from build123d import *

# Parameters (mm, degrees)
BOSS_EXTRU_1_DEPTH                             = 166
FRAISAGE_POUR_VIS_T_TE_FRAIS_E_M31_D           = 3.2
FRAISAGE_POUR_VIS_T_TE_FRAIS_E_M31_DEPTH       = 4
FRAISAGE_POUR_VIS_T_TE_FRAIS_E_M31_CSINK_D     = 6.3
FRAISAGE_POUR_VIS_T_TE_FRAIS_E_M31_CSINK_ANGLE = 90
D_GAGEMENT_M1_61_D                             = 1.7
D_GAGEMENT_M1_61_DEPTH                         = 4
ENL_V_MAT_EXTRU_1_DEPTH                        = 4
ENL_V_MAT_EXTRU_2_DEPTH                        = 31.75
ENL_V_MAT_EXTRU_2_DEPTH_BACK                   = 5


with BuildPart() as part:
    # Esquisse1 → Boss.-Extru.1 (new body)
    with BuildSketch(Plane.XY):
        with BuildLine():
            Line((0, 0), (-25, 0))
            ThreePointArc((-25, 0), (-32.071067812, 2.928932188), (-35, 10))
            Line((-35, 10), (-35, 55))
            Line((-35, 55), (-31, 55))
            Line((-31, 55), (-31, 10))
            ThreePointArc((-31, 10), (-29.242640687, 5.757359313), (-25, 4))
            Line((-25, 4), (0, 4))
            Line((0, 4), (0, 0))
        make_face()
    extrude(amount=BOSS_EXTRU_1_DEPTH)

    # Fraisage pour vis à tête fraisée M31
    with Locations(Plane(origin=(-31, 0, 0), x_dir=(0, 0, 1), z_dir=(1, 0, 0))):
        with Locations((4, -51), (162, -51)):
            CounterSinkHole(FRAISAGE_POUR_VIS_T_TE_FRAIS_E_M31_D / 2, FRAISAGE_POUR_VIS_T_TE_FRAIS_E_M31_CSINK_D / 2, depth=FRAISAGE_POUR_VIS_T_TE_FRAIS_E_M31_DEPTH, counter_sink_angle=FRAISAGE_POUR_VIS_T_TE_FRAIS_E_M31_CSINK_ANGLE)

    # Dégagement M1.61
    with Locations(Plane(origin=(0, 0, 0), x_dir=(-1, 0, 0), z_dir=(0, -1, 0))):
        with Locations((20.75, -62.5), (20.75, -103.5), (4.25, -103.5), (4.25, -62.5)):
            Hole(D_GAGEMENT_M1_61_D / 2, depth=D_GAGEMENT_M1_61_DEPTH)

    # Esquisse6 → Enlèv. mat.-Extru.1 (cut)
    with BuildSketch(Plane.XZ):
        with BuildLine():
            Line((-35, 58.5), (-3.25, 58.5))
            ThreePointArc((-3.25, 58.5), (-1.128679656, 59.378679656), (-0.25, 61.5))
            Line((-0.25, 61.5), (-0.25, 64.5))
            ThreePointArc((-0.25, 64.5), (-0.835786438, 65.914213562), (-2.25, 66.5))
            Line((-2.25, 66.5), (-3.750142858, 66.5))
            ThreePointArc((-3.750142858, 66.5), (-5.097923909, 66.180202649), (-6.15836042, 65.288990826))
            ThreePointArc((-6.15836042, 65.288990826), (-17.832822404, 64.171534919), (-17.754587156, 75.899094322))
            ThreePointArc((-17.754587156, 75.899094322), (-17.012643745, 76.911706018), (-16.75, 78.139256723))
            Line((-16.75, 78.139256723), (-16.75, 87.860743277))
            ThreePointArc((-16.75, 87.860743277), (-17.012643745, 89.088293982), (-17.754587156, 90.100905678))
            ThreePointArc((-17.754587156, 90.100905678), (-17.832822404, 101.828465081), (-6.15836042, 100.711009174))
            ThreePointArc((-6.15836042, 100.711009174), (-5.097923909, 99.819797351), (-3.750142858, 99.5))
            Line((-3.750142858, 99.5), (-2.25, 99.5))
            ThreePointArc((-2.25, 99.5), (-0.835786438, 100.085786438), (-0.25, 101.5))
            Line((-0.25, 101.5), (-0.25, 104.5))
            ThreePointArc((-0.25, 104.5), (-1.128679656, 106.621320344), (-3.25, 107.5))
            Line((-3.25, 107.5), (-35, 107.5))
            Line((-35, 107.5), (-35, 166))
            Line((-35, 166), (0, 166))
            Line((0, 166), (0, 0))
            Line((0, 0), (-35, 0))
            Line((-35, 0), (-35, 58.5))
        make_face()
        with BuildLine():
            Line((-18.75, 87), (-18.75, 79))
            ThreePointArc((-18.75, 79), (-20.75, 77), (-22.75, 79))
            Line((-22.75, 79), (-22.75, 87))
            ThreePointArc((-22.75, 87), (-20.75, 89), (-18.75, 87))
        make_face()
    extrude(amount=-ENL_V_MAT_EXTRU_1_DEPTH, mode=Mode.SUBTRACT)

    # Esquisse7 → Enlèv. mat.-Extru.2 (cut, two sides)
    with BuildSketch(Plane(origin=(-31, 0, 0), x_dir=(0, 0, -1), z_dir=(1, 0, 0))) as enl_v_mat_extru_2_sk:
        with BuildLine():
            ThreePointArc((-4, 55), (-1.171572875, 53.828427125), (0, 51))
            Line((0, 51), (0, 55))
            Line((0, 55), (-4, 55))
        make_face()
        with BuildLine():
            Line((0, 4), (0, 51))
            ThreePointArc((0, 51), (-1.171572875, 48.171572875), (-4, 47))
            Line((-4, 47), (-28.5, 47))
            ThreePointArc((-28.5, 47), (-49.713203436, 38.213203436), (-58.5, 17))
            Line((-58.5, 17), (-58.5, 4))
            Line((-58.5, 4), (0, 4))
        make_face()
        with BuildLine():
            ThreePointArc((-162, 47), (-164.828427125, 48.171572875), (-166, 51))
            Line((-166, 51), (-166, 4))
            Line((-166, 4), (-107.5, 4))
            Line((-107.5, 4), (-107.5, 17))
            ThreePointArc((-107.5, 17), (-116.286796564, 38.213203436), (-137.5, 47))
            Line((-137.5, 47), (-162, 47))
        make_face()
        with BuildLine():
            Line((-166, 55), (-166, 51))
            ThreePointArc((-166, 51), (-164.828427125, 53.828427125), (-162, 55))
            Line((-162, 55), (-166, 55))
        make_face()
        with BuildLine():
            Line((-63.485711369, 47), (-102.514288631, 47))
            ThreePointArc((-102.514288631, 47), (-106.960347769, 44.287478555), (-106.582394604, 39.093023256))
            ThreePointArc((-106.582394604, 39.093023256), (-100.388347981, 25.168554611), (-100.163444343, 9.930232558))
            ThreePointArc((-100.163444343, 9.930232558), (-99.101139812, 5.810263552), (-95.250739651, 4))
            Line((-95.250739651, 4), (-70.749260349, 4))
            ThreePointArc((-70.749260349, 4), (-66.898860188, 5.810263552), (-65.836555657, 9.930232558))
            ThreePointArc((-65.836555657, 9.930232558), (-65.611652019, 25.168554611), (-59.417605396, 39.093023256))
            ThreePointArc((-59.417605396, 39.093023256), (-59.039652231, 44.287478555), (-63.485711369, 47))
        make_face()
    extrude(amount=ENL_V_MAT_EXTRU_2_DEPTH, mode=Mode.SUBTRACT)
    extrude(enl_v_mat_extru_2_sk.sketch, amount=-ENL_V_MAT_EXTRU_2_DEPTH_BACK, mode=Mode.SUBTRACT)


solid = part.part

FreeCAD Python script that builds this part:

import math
import FreeCAD as App
import Part
import Sketcher
from FreeCAD import Vector
Q = App.Units.Quantity

doc = App.newDocument("Part")
body = doc.addObject("PartDesign::Body", "Body")

sketch1 = body.newObject("Sketcher::SketchObject", "Sketch")
sketch1.AttachmentSupport = (doc.getObject("XY_Plane"), [""])
sketch1.MapMode = "FlatFace"
sketch1.addGeometry(Part.LineSegment(Vector(-25, 0, 0), Vector(0, 0, 0)), False)
sketch1.addGeometry(Part.LineSegment(Vector(0, 0, 0), Vector(0, 4, 0)), False)
sketch1.addGeometry(Part.LineSegment(Vector(0, 4, 0), Vector(-25, 4, 0)), False)
sketch1.addGeometry(Part.ArcOfCircle(Part.Circle(Vector(-25, 10, 0), Vector(0, 0, 1), 6), math.radians(180), math.radians(270)), False)
sketch1.addGeometry(Part.LineSegment(Vector(-31, 10, 0), Vector(-31, 55, 0)), False)
sketch1.addGeometry(Part.LineSegment(Vector(-31, 55, 0), Vector(-35, 55, 0)), False)
sketch1.addGeometry(Part.LineSegment(Vector(-35, 55, 0), Vector(-35, 10, 0)), False)
sketch1.addGeometry(Part.ArcOfCircle(Part.Circle(Vector(-25, 10, 0), Vector(0, 0, 1), 10), math.radians(180), math.radians(270)), False)
sketch1.addConstraint(Sketcher.Constraint("Coincident", 0, 2, 1, 1))
sketch1.addConstraint(Sketcher.Constraint("Coincident", 1, 2, 2, 1))
sketch1.addConstraint(Sketcher.Constraint("Tangent", 2, 2, 3, 2))
sketch1.addConstraint(Sketcher.Constraint("Tangent", 3, 1, 4, 1))
sketch1.addConstraint(Sketcher.Constraint("Coincident", 4, 2, 5, 1))
sketch1.addConstraint(Sketcher.Constraint("Coincident", 5, 2, 6, 1))
sketch1.addConstraint(Sketcher.Constraint("Tangent", 6, 2, 7, 1))
sketch1.addConstraint(Sketcher.Constraint("Tangent", 7, 2, 0, 1))
sketch1.addConstraint(Sketcher.Constraint("Horizontal", 0))
sketch1.addConstraint(Sketcher.Constraint("Vertical", 1))
sketch1.addConstraint(Sketcher.Constraint("Horizontal", 2))
sketch1.addConstraint(Sketcher.Constraint("Vertical", 4))
sketch1.addConstraint(Sketcher.Constraint("Horizontal", 5))
sketch1.addConstraint(Sketcher.Constraint("Vertical", 6))
sketch1.addConstraint(Sketcher.Constraint("Coincident", 0, 2, -1, 1))
sketch1.addConstraint(Sketcher.Constraint("Coincident", 7, 3, 3, 3))
sketch1.addConstraint(Sketcher.Constraint("Radius", 3, Q("6 mm")))
sketch1.addConstraint(Sketcher.Constraint("Radius", 7, Q("10 mm")))
sketch1.addConstraint(Sketcher.Constraint("DistanceX", 0, 1, 0, 2, Q("25 mm")))
sketch1.addConstraint(Sketcher.Constraint("DistanceY", 4, 1, 4, 2, Q("45 mm")))
pad1 = body.newObject("PartDesign::Pad", "Pad")
pad1.Profile = sketch1
pad1.Length = 166

sketch2 = body.newObject("Sketcher::SketchObject", "Sketch001")
sketch2.AttachmentSupport = (doc.getObject("YZ_Plane"), [""])
sketch2.MapMode = "FlatFace"
sketch2.AttachmentOffset = App.Placement(Vector(0, 0, -31), App.Rotation())
sketch2.addGeometry(Part.Circle(Vector(51, 4, 0), Vector(0, 0, 1), 1.6), False)
sketch2.addGeometry(Part.Circle(Vector(51, 162, 0), Vector(0, 0, 1), 1.6), False)
sketch2.addConstraint(Sketcher.Constraint("Equal", 0, 1))
sketch2.addConstraint(Sketcher.Constraint("Vertical", 0, 3, 1, 3))
sketch2.addConstraint(Sketcher.Constraint("Diameter", 0, Q("3.2 mm")))
sketch2.addConstraint(Sketcher.Constraint("DistanceX", -1, 1, 0, 3, Q("51 mm")))
sketch2.addConstraint(Sketcher.Constraint("DistanceY", -1, 1, 0, 3, Q("4 mm")))
sketch2.addConstraint(Sketcher.Constraint("DistanceY", -1, 1, 1, 3, Q("162 mm")))
doc.recompute()
hole = body.newObject("PartDesign::Hole", "Hole")
hole.Profile = sketch2
hole.ThreadType = "None"
hole.Diameter = 3.2
hole.DepthType = "Dimension"
hole.Depth = 4
hole.DrillPoint = "Flat"
hole.HoleCutType = "Countersink"
hole.HoleCutDiameter = 6.3
hole.HoleCutCountersinkAngle = 90

sketch3 = body.newObject("Sketcher::SketchObject", "Sketch002")
sketch3.AttachmentSupport = (doc.getObject("XZ_Plane"), [""])
sketch3.MapMode = "FlatFace"
sketch3.addGeometry(Part.Circle(Vector(-20.75, 62.5, 0), Vector(0, 0, 1), 0.85), False)
sketch3.addGeometry(Part.Circle(Vector(-20.75, 103.5, 0), Vector(0, 0, 1), 0.85), False)
sketch3.addGeometry(Part.Circle(Vector(-4.25, 103.5, 0), Vector(0, 0, 1), 0.85), False)
sketch3.addGeometry(Part.Circle(Vector(-4.25, 62.5, 0), Vector(0, 0, 1), 0.85), False)
sketch3.addConstraint(Sketcher.Constraint("Equal", 0, 1))
sketch3.addConstraint(Sketcher.Constraint("Equal", 1, 2))
sketch3.addConstraint(Sketcher.Constraint("Equal", 2, 3))
sketch3.addConstraint(Sketcher.Constraint("Horizontal", 1, 3, 2, 3))
sketch3.addConstraint(Sketcher.Constraint("Horizontal", 0, 3, 3, 3))
sketch3.addConstraint(Sketcher.Constraint("Vertical", 0, 3, 1, 3))
sketch3.addConstraint(Sketcher.Constraint("Vertical", 2, 3, 3, 3))
sketch3.addConstraint(Sketcher.Constraint("Diameter", 0, Q("1.7 mm")))
sketch3.addConstraint(Sketcher.Constraint("DistanceY", 0, 3, 1, 3, Q("41 mm")))
sketch3.addConstraint(Sketcher.Constraint("DistanceY", -1, 1, 0, 3, Q("62.5 mm")))
sketch3.addConstraint(Sketcher.Constraint("DistanceX", 1, 3, 2, 3, Q("16.5 mm")))
sketch3.addConstraint(Sketcher.Constraint("DistanceX", 0, 3, -1, 1, Q("20.75 mm")))
doc.recompute()
hole2 = body.newObject("PartDesign::Hole", "Hole001")
hole2.Profile = sketch3
hole2.ThreadType = "None"
hole2.Diameter = 1.7
hole2.DepthType = "Dimension"
hole2.Depth = 4
hole2.DrillPoint = "Flat"

sketch4 = body.newObject("Sketcher::SketchObject", "Sketch003")
sketch4.AttachmentSupport = (doc.getObject("XZ_Plane"), [""])
sketch4.MapMode = "FlatFace"
sketch4.addGeometry(Part.LineSegment(Vector(-3.25, 58.5, 0), Vector(-35, 58.5, 0)), False)
sketch4.addGeometry(Part.LineSegment(Vector(-35, 58.5, 0), Vector(-35, 0, 0)), False)
sketch4.addGeometry(Part.LineSegment(Vector(-35, 0, 0), Vector(0, 0, 0)), False)
sketch4.addGeometry(Part.LineSegment(Vector(0, 0, 0), Vector(0, 166, 0)), False)
sketch4.addGeometry(Part.LineSegment(Vector(0, 166, 0), Vector(-35, 166, 0)), False)
sketch4.addGeometry(Part.LineSegment(Vector(-35, 166, 0), Vector(-35, 107.5, 0)), False)
sketch4.addGeometry(Part.LineSegment(Vector(-35, 107.5, 0), Vector(-3.25, 107.5, 0)), False)
sketch4.addGeometry(Part.ArcOfCircle(Part.Circle(Vector(-3.25, 104.5, 0), Vector(0, 0, 1), 3), math.radians(0), math.radians(90)), False)
sketch4.addGeometry(Part.LineSegment(Vector(-0.25, 104.5, 0), Vector(-0.25, 101.5, 0)), False)
sketch4.addGeometry(Part.ArcOfCircle(Part.Circle(Vector(-2.25, 101.5, 0), Vector(0, 0, 1), 2), math.radians(-90), math.radians(0)), False)
sketch4.addGeometry(Part.LineSegment(Vector(-2.25, 99.5, 0), Vector(-3.750143, 99.5, 0)), False)
sketch4.addGeometry(Part.ArcOfCircle(Part.Circle(Vector(-3.750143, 102.5, 0), Vector(0, 0, 1), 3), math.radians(-143.392477), math.radians(-90)), False)
sketch4.addGeometry(Part.ArcOfCircle(Part.Circle(Vector(-12.5, 96, 0), Vector(0, 0, 1), 7.9), math.radians(36.607523), math.radians(228.307116)), False)
sketch4.addGeometry(Part.ArcOfCircle(Part.Circle(Vector(-19.75, 87.860743, 0), Vector(0, 0, 1), 3), math.radians(0), math.radians(48.307116)), False)
sketch4.addGeometry(Part.LineSegment(Vector(-16.75, 87.860743, 0), Vector(-16.75, 78.139257, 0)), False)
sketch4.addGeometry(Part.ArcOfCircle(Part.Circle(Vector(-19.75, 78.139257, 0), Vector(0, 0, 1), 3), math.radians(-48.307116), math.radians(0)), False)
sketch4.addGeometry(Part.ArcOfCircle(Part.Circle(Vector(-12.5, 70, 0), Vector(0, 0, 1), 7.9), math.radians(131.692884), math.radians(323.392477)), False)
sketch4.addGeometry(Part.ArcOfCircle(Part.Circle(Vector(-3.750143, 63.5, 0), Vector(0, 0, 1), 3), math.radians(90), math.radians(143.392477)), False)
sketch4.addGeometry(Part.LineSegment(Vector(-3.750143, 66.5, 0), Vector(-2.25, 66.5, 0)), False)
sketch4.addGeometry(Part.ArcOfCircle(Part.Circle(Vector(-2.25, 64.5, 0), Vector(0, 0, 1), 2), math.radians(0), math.radians(90)), False)
sketch4.addGeometry(Part.LineSegment(Vector(-0.25, 64.5, 0), Vector(-0.25, 61.5, 0)), False)
sketch4.addGeometry(Part.ArcOfCircle(Part.Circle(Vector(-3.25, 61.5, 0), Vector(0, 0, 1), 3), math.radians(-90), math.radians(0)), False)
sketch4.addGeometry(Part.LineSegment(Vector(-18.75, 79, 0), Vector(-18.75, 87, 0)), False)
sketch4.addGeometry(Part.ArcOfCircle(Part.Circle(Vector(-20.75, 87, 0), Vector(0, 0, 1), 2), math.radians(0), math.radians(180)), False)
sketch4.addGeometry(Part.LineSegment(Vector(-22.75, 87, 0), Vector(-22.75, 79, 0)), False)
sketch4.addGeometry(Part.ArcOfCircle(Part.Circle(Vector(-20.75, 79, 0), Vector(0, 0, 1), 2), math.radians(180), math.radians(360)), False)
sketch4.addConstraint(Sketcher.Constraint("Coincident", 0, 2, 1, 1))
sketch4.addConstraint(Sketcher.Constraint("Coincident", 1, 2, 2, 1))
sketch4.addConstraint(Sketcher.Constraint("Coincident", 2, 2, 3, 1))
sketch4.addConstraint(Sketcher.Constraint("Coincident", 3, 2, 4, 1))
sketch4.addConstraint(Sketcher.Constraint("Coincident", 4, 2, 5, 1))
sketch4.addConstraint(Sketcher.Constraint("Coincident", 5, 2, 6, 1))
sketch4.addConstraint(Sketcher.Constraint("Tangent", 6, 2, 7, 2))
sketch4.addConstraint(Sketcher.Constraint("Tangent", 7, 1, 8, 1))
sketch4.addConstraint(Sketcher.Constraint("Tangent", 8, 2, 9, 2))
sketch4.addConstraint(Sketcher.Constraint("Tangent", 9, 1, 10, 1))
sketch4.addConstraint(Sketcher.Constraint("Tangent", 10, 2, 11, 2))
sketch4.addConstraint(Sketcher.Constraint("Tangent", 11, 1, 12, 1))
sketch4.addConstraint(Sketcher.Constraint("Tangent", 12, 2, 13, 2))
sketch4.addConstraint(Sketcher.Constraint("Tangent", 13, 1, 14, 1))
sketch4.addConstraint(Sketcher.Constraint("Tangent", 14, 2, 15, 2))
sketch4.addConstraint(Sketcher.Constraint("Tangent", 15, 1, 16, 1))
sketch4.addConstraint(Sketcher.Constraint("Tangent", 16, 2, 17, 2))
sketch4.addConstraint(Sketcher.Constraint("Tangent", 17, 1, 18, 1))
sketch4.addConstraint(Sketcher.Constraint("Tangent", 18, 2, 19, 2))
sketch4.addConstraint(Sketcher.Constraint("Tangent", 19, 1, 20, 1))
sketch4.addConstraint(Sketcher.Constraint("Tangent", 20, 2, 21, 2))
sketch4.addConstraint(Sketcher.Constraint("Tangent", 21, 1, 0, 1))
sketch4.addConstraint(Sketcher.Constraint("Tangent", 22, 2, 23, 1))
sketch4.addConstraint(Sketcher.Constraint("Tangent", 23, 2, 24, 1))
sketch4.addConstraint(Sketcher.Constraint("Tangent", 24, 2, 25, 1))
sketch4.addConstraint(Sketcher.Constraint("Tangent", 25, 2, 22, 1))
sketch4.addConstraint(Sketcher.Constraint("Horizontal", 0))
sketch4.addConstraint(Sketcher.Constraint("Vertical", 1))
sketch4.addConstraint(Sketcher.Constraint("Horizontal", 2))
sketch4.addConstraint(Sketcher.Constraint("Vertical", 3))
sketch4.addConstraint(Sketcher.Constraint("Horizontal", 4))
sketch4.addConstraint(Sketcher.Constraint("Vertical", 5))
sketch4.addConstraint(Sketcher.Constraint("Horizontal", 6))
sketch4.addConstraint(Sketcher.Constraint("Vertical", 8))
sketch4.addConstraint(Sketcher.Constraint("Horizontal", 10))
sketch4.addConstraint(Sketcher.Constraint("Vertical", 14))
sketch4.addConstraint(Sketcher.Constraint("Horizontal", 18))
sketch4.addConstraint(Sketcher.Constraint("Vertical", 20))
sketch4.addConstraint(Sketcher.Constraint("Vertical", 22))
sketch4.addConstraint(Sketcher.Constraint("Vertical", 24))
sketch4.addConstraint(Sketcher.Constraint("Coincident", 2, 2, -1, 1))
sketch4.addConstraint(Sketcher.Constraint("Equal", 7, 11))
sketch4.addConstraint(Sketcher.Constraint("Equal", 11, 13))
sketch4.addConstraint(Sketcher.Constraint("Equal", 13, 15))
sketch4.addConstraint(Sketcher.Constraint("Equal", 12, 16))
sketch4.addConstraint(Sketcher.Constraint("Equal", 15, 17))
sketch4.addConstraint(Sketcher.Constraint("Equal", 9, 19))
sketch4.addConstraint(Sketcher.Constraint("Equal", 17, 21))
sketch4.addConstraint(Sketcher.Constraint("Equal", 19, 23))
sketch4.addConstraint(Sketcher.Constraint("Vertical", 12, 3, 16, 3))
sketch4.addConstraint(Sketcher.Constraint("Vertical", 11, 3, 17, 3))
sketch4.addConstraint(Sketcher.Constraint("Vertical", 9, 3, 19, 3))
sketch4.addConstraint(Sketcher.Constraint("Vertical", 1, 2, 4, 2))
sketch4.addConstraint(Sketcher.Constraint("Equal", 1, 5))
sketch4.addConstraint(Sketcher.Constraint("Equal", 8, 20))
sketch4.addConstraint(Sketcher.Constraint("Radius", 7, Q("3 mm")))
sketch4.addConstraint(Sketcher.Constraint("Radius", 9, Q("2 mm")))
sketch4.addConstraint(Sketcher.Constraint("Radius", 12, Q("7.9 mm")))
sketch4.addConstraint(Sketcher.Constraint("DistanceX", 2, 1, 2, 2, Q("35 mm")))
sketch4.addConstraint(Sketcher.Constraint("DistanceY", 3, 1, 3, 2, Q("166 mm")))
sketch4.addConstraint(Sketcher.Constraint("DistanceY", 8, 2, 8, 1, Q("3 mm")))
sketch4.addConstraint(Sketcher.Constraint("DistanceY", 22, 1, 22, 2, Q("8 mm")))
sketch4.addConstraint(Sketcher.Constraint("DistanceY", 1, 2, 1, 1, Q("58.5 mm")))
sketch4.addConstraint(Sketcher.Constraint("DistanceY", -1, 1, 12, 3, Q("96 mm")))
sketch4.addConstraint(Sketcher.Constraint("DistanceY", -1, 1, 23, 3, Q("87 mm")))
sketch4.addConstraint(Sketcher.Constraint("DistanceX", 23, 3, 13, 3, Q("1 mm")))
sketch4.addConstraint(Sketcher.Constraint("DistanceX", 0, 2, 0, 1, Q("31.75 mm")))
sketch4.addConstraint(Sketcher.Constraint("DistanceX", 12, 3, -1, 1, Q("12.5 mm")))
sketch4.addConstraint(Sketcher.Constraint("DistanceX", 13, 3, 9, 3, Q("17.5 mm")))
pocket1 = body.newObject("PartDesign::Pocket", "Pocket")
pocket1.Profile = sketch4
pocket1.Length = 4

sketch5 = body.newObject("Sketcher::SketchObject", "Sketch004")
sketch5.AttachmentSupport = (doc.getObject("YZ_Plane"), [""])
sketch5.MapMode = "FlatFace"
sketch5.AttachmentOffset = App.Placement(Vector(0, 0, -31), App.Rotation())
sketch5.addGeometry(Part.ArcOfCircle(Part.Circle(Vector(51, 4, 0), Vector(0, 0, 1), 4), math.radians(-90), math.radians(0)), False)
sketch5.addGeometry(Part.LineSegment(Vector(51, 0, 0), Vector(55, 0, 0)), False)
sketch5.addGeometry(Part.LineSegment(Vector(55, 0, 0), Vector(55, 4, 0)), False)
sketch5.addGeometry(Part.LineSegment(Vector(4, 0, 0), Vector(51, 0, 0)), False)
sketch5.addGeometry(Part.ArcOfCircle(Part.Circle(Vector(51, 4, 0), Vector(0, 0, 1), 4), math.radians(180), math.radians(270)), False)
sketch5.addGeometry(Part.LineSegment(Vector(47, 4, 0), Vector(47, 28.5, 0)), False)
sketch5.addGeometry(Part.ArcOfCircle(Part.Circle(Vector(17, 28.5, 0), Vector(0, 0, 1), 30), math.radians(0), math.radians(90)), False)
sketch5.addGeometry(Part.LineSegment(Vector(17, 58.5, 0), Vector(4, 58.5, 0)), False)
sketch5.addGeometry(Part.LineSegment(Vector(4, 58.5, 0), Vector(4, 0, 0)), False)
sketch5.addGeometry(Part.ArcOfCircle(Part.Circle(Vector(51, 162, 0), Vector(0, 0, 1), 4), math.radians(90), math.radians(180)), False)
sketch5.addGeometry(Part.LineSegment(Vector(51, 166, 0), Vector(4, 166, 0)), False)
sketch5.addGeometry(Part.LineSegment(Vector(4, 166, 0), Vector(4, 107.5, 0)), False)
sketch5.addGeometry(Part.LineSegment(Vector(4, 107.5, 0), Vector(17, 107.5, 0)), False)
sketch5.addGeometry(Part.ArcOfCircle(Part.Circle(Vector(17, 137.5, 0), Vector(0, 0, 1), 30), math.radians(-90), math.radians(0)), False)
sketch5.addGeometry(Part.LineSegment(Vector(47, 137.5, 0), Vector(47, 162, 0)), False)
sketch5.addGeometry(Part.LineSegment(Vector(55, 166, 0), Vector(51, 166, 0)), False)
sketch5.addGeometry(Part.ArcOfCircle(Part.Circle(Vector(51, 162, 0), Vector(0, 0, 1), 4), math.radians(0), math.radians(90)), False)
sketch5.addGeometry(Part.LineSegment(Vector(55, 162, 0), Vector(55, 166, 0)), False)
sketch5.addGeometry(Part.LineSegment(Vector(47, 63.485711, 0), Vector(47, 102.514289, 0)), False)
sketch5.addGeometry(Part.ArcOfCircle(Part.Circle(Vector(42, 102.514289, 0), Vector(0, 0, 1), 5), math.radians(0), math.radians(125.548744)), False)
sketch5.addGeometry(Part.ArcOfCircle(Part.Circle(Vector(17, 137.5, 0), Vector(0, 0, 1), 38), math.radians(-100.722152), math.radians(-54.451256)), False)
sketch5.addGeometry(Part.ArcOfCircle(Part.Circle(Vector(9, 95.25074, 0), Vector(0, 0, 1), 5), math.radians(79.277848), math.radians(180)), False)
sketch5.addGeometry(Part.LineSegment(Vector(4, 95.25074, 0), Vector(4, 70.74926, 0)), False)
sketch5.addGeometry(Part.ArcOfCircle(Part.Circle(Vector(9, 70.74926, 0), Vector(0, 0, 1), 5), math.radians(180), math.radians(280.722152)), False)
sketch5.addGeometry(Part.ArcOfCircle(Part.Circle(Vector(17, 28.5, 0), Vector(0, 0, 1), 38), math.radians(54.451256), math.radians(100.722152)), False)
sketch5.addGeometry(Part.ArcOfCircle(Part.Circle(Vector(42, 63.485711, 0), Vector(0, 0, 1), 5), math.radians(-125.548744), math.radians(0)), False)
sketch5.addConstraint(Sketcher.Constraint("Tangent", 0, 1, 1, 1))
sketch5.addConstraint(Sketcher.Constraint("Coincident", 1, 2, 2, 1))
sketch5.addConstraint(Sketcher.Constraint("Tangent", 2, 2, 0, 2))
sketch5.addConstraint(Sketcher.Constraint("Tangent", 3, 2, 4, 2))
sketch5.addConstraint(Sketcher.Constraint("Tangent", 4, 1, 5, 1))
sketch5.addConstraint(Sketcher.Constraint("Tangent", 5, 2, 6, 1))
sketch5.addConstraint(Sketcher.Constraint("Tangent", 6, 2, 7, 1))
sketch5.addConstraint(Sketcher.Constraint("Coincident", 7, 2, 8, 1))
sketch5.addConstraint(Sketcher.Constraint("Coincident", 8, 2, 3, 1))
sketch5.addConstraint(Sketcher.Constraint("Tangent", 9, 1, 10, 1))
sketch5.addConstraint(Sketcher.Constraint("Coincident", 10, 2, 11, 1))
sketch5.addConstraint(Sketcher.Constraint("Coincident", 11, 2, 12, 1))
sketch5.addConstraint(Sketcher.Constraint("Tangent", 12, 2, 13, 1))
sketch5.addConstraint(Sketcher.Constraint("Tangent", 13, 2, 14, 1))
sketch5.addConstraint(Sketcher.Constraint("Tangent", 14, 2, 9, 2))
sketch5.addConstraint(Sketcher.Constraint("Tangent", 15, 2, 16, 2))
sketch5.addConstraint(Sketcher.Constraint("Tangent", 16, 1, 17, 1))
sketch5.addConstraint(Sketcher.Constraint("Coincident", 17, 2, 15, 1))
sketch5.addConstraint(Sketcher.Constraint("Tangent", 18, 2, 19, 1))
sketch5.addConstraint(Sketcher.Constraint("Tangent", 19, 2, 20, 2))
sketch5.addConstraint(Sketcher.Constraint("Tangent", 20, 1, 21, 1))
sketch5.addConstraint(Sketcher.Constraint("Tangent", 21, 2, 22, 1))
sketch5.addConstraint(Sketcher.Constraint("Tangent", 22, 2, 23, 1))
sketch5.addConstraint(Sketcher.Constraint("Tangent", 23, 2, 24, 2))
sketch5.addConstraint(Sketcher.Constraint("Tangent", 24, 1, 25, 1))
sketch5.addConstraint(Sketcher.Constraint("Tangent", 25, 2, 18, 1))
sketch5.addConstraint(Sketcher.Constraint("Horizontal", 1))
sketch5.addConstraint(Sketcher.Constraint("Vertical", 2))
sketch5.addConstraint(Sketcher.Constraint("Horizontal", 3))
sketch5.addConstraint(Sketcher.Constraint("Vertical", 5))
sketch5.addConstraint(Sketcher.Constraint("Horizontal", 7))
sketch5.addConstraint(Sketcher.Constraint("Vertical", 8))
sketch5.addConstraint(Sketcher.Constraint("Horizontal", 10))
sketch5.addConstraint(Sketcher.Constraint("Vertical", 11))
sketch5.addConstraint(Sketcher.Constraint("Horizontal", 12))
sketch5.addConstraint(Sketcher.Constraint("Vertical", 14))
sketch5.addConstraint(Sketcher.Constraint("Horizontal", 15))
sketch5.addConstraint(Sketcher.Constraint("Vertical", 17))
sketch5.addConstraint(Sketcher.Constraint("Vertical", 18))
sketch5.addConstraint(Sketcher.Constraint("Vertical", 22))
sketch5.addConstraint(Sketcher.Constraint("Coincident", 4, 3, 0, 3))
sketch5.addConstraint(Sketcher.Constraint("Coincident", 16, 3, 9, 3))
sketch5.addConstraint(Sketcher.Constraint("Coincident", 20, 3, 13, 3))
sketch5.addConstraint(Sketcher.Constraint("Coincident", 24, 3, 6, 3))
sketch5.addConstraint(Sketcher.Constraint("Equal", 0, 4))
sketch5.addConstraint(Sketcher.Constraint("Equal", 4, 9))
sketch5.addConstraint(Sketcher.Constraint("Equal", 6, 13))
sketch5.addConstraint(Sketcher.Constraint("Equal", 9, 16))
sketch5.addConstraint(Sketcher.Constraint("Equal", 19, 21))
sketch5.addConstraint(Sketcher.Constraint("Equal", 21, 23))
sketch5.addConstraint(Sketcher.Constraint("Equal", 20, 24))
sketch5.addConstraint(Sketcher.Constraint("Equal", 23, 25))
sketch5.addConstraint(Sketcher.Constraint("PointOnObject", 0, 1, -1))
sketch5.addConstraint(Sketcher.Constraint("Vertical", 4, 3, 9, 3))
sketch5.addConstraint(Sketcher.Constraint("Vertical", 8, 2, 10, 2))
sketch5.addConstraint(Sketcher.Constraint("Vertical", 14, 2, 18, 2))
sketch5.addConstraint(Sketcher.Constraint("Vertical", 11, 2, 21, 2))
sketch5.addConstraint(Sketcher.Constraint("Equal", 8, 11))
sketch5.addConstraint(Sketcher.Constraint("Radius", 0, Q("4 mm")))
sketch5.addConstraint(Sketcher.Constraint("Radius", 6, Q("30 mm")))
sketch5.addConstraint(Sketcher.Constraint("Radius", 19, Q("5 mm")))
sketch5.addConstraint(Sketcher.Constraint("Radius", 20, Q("38 mm")))
sketch5.addConstraint(Sketcher.Constraint("DistanceX", 3, 1, 3, 2, Q("47 mm")))
sketch5.addConstraint(Sketcher.Constraint("DistanceY", 5, 1, 5, 2, Q("24.5 mm")))
sketch5.addConstraint(Sketcher.Constraint("DistanceX", -1, 1, 0, 3, Q("51 mm")))
sketch5.addConstraint(Sketcher.Constraint("DistanceY", -1, 1, 9, 3, Q("162 mm")))
pocket2 = body.newObject("PartDesign::Pocket", "Pocket001")
pocket2.Profile = sketch5
pocket2.Type = "ThroughAll"
pocket2.Midplane = True

doc.recompute()
